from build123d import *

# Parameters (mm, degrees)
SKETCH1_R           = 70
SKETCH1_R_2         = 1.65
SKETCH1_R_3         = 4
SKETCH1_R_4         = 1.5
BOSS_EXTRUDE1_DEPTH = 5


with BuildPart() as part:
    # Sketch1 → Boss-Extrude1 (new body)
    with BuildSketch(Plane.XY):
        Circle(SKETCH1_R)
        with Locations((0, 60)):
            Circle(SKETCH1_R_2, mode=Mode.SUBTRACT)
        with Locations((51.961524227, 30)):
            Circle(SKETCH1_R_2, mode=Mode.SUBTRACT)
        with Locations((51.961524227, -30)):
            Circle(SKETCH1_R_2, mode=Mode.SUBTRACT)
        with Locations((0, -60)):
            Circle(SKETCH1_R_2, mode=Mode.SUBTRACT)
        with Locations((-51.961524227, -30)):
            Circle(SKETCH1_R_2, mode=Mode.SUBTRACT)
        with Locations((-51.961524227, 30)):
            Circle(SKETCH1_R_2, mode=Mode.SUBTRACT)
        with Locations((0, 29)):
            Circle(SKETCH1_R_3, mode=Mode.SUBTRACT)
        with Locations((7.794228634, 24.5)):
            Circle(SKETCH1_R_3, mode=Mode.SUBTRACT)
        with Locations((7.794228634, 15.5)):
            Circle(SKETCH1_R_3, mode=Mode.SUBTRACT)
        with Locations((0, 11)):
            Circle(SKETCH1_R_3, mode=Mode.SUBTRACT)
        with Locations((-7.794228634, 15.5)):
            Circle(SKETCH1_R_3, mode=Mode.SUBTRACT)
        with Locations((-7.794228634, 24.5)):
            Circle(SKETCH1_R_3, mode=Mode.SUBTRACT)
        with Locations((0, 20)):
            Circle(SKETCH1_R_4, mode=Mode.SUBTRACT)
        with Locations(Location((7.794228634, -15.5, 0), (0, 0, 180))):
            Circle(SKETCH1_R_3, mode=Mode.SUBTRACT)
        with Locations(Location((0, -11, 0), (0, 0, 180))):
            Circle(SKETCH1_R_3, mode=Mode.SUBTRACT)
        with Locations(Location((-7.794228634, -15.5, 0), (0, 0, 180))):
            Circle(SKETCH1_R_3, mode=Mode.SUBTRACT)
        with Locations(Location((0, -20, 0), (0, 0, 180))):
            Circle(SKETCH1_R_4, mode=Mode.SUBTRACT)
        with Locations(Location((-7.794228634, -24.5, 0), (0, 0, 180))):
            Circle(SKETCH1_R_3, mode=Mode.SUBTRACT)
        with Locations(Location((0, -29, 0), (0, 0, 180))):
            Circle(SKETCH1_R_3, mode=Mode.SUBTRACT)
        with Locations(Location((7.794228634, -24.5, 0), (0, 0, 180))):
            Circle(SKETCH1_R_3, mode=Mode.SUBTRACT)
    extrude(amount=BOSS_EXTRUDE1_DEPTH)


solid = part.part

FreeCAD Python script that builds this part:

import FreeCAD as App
import Part
import Sketcher

V = App.Vector

doc = App.newDocument("Part")
body = doc.addObject("PartDesign::Body", "Body")

# Sketch on XY plane
sketch1 = body.newObject("Sketcher::SketchObject", "Sketch")
sketch1.AttachmentSupport = (doc.getObject("XY_Plane"), [""])
sketch1.MapMode = "FlatFace"
sketch1.addGeometry([
    Part.Circle(V(0, 0, 0), V(0, 0, 1), 70),  # 0
    Part.Circle(V(0, -60, 0), V(0, 0, 1), 1.65),  # 1
    Part.Circle(V(-51.961524, -30, 0), V(0, 0, 1), 1.65),  # 2
    Part.Circle(V(-7.794229, -24.5, 0), V(0, 0, 1), 4),  # 3
    Part.Circle(V(0, -29, 0), V(0, 0, 1), 4),  # 4
    Part.Circle(V(-7.794229, -15.5, 0), V(0, 0, 1), 4),  # 5
    Part.Circle(V(0, -20, 0), V(0, 0, 1), 1.5),  # 6
    Part.Circle(V(0, -11, 0), V(0, 0, 1), 4),  # 7
    Part.Circle(V(7.794229, -24.5, 0), V(0, 0, 1), 4),  # 8
    Part.Circle(V(7.794229, -15.5, 0), V(0, 0, 1), 4),  # 9
    Part.Circle(V(51.961524, -30, 0), V(0, 0, 1), 1.65),  # 10
    Part.Circle(V(-51.961524, 30, 0), V(0, 0, 1), 1.65),  # 11
    Part.Circle(V(0, 11, 0), V(0, 0, 1), 4),  # 12
    Part.Circle(V(-7.794229, 15.5, 0), V(0, 0, 1), 4),  # 13
    Part.Circle(V(0, 20, 0), V(0, 0, 1), 1.5),  # 14
    Part.Circle(V(-7.794229, 24.5, 0), V(0, 0, 1), 4),  # 15
    Part.Circle(V(0, 29, 0), V(0, 0, 1), 4),  # 16
    Part.Circle(V(0, 60, 0), V(0, 0, 1), 1.65),  # 17
    Part.Circle(V(7.794229, 15.5, 0), V(0, 0, 1), 4),  # 18
    Part.Circle(V(7.794229, 24.5, 0), V(0, 0, 1), 4),  # 19
    Part.Circle(V(51.961524, 30, 0), V(0, 0, 1), 1.65),  # 20
], False)
sketch1.addConstraint([
    Sketcher.Constraint("Coincident", 0, 3, -1, 1),
    Sketcher.Constraint("Equal", 1, 2),
    Sketcher.Constraint("Equal", 3, 4),
    Sketcher.Constraint("Equal", 4, 5),
    Sketcher.Constraint("Equal", 5, 7),
    Sketcher.Constraint("Equal", 7, 8),
    Sketcher.Constraint("Equal", 8, 9),
    Sketcher.Constraint("Equal", 2, 10),
    Sketcher.Constraint("Equal", 10, 11),
    Sketcher.Constraint("Equal", 9, 12),
    Sketcher.Constraint("Equal", 12, 13),
    Sketcher.Constraint("Equal", 6, 14),
    Sketcher.Constraint("Equal", 13, 15),
    Sketcher.Constraint("Equal", 15, 16),
    Sketcher.Constraint("Equal", 11, 17),
    Sketcher.Constraint("Equal", 16, 18),
    Sketcher.Constraint("Equal", 18, 19),
    Sketcher.Constraint("Equal", 17, 20),
    Sketcher.Constraint("Symmetric", 10, 3, 11, 3, -1, 1),
    Sketcher.Constraint("Symmetric", 7, 3, 12, 3, -1, 1),
    Sketcher.Constraint("Symmetric", 9, 3, 13, 3, -1, 1),
    Sketcher.Constraint("Symmetric", 6, 3, 14, 3, -1, 1),
    Sketcher.Constraint("Symmetric", 8, 3, 15, 3, -1, 1),
    Sketcher.Constraint("Symmetric", 4, 3, 16, 3, -1, 1),
    Sketcher.Constraint("Symmetric", 1, 3, 17, 3, -1, 1),
    Sketcher.Constraint("Symmetric", 5, 3, 18, 3, -1, 1),
    Sketcher.Constraint("Symmetric", 3, 3, 19, 3, -1, 1),
    Sketcher.Constraint("Symmetric", 2, 3, 20, 3, -1, 1),
    Sketcher.Constraint("Symmetric", 3, 3, 8, 3, -2),
    Sketcher.Constraint("Symmetric", 5, 3, 9, 3, -2),
    Sketcher.Constraint("Symmetric", 2, 3, 10, 3, -2),
    Sketcher.Constraint("PointOnObject", 1, 3, -2),
    Sketcher.Constraint("PointOnObject", 4, 3, -2),
    Sketcher.Constraint("PointOnObject", 6, 3, -2),
    Sketcher.Constraint("PointOnObject", 7, 3, -2),
    Sketcher.Constraint("Vertical", 3, 3, 5, 3),
    Sketcher.Constraint("Diameter", 0, 140.0),
    Sketcher.Constraint("Diameter", 3, 8.0),
    Sketcher.Constraint("Diameter", 6, 3.0),
    Sketcher.Constraint("Diameter", 1, 3.3),
    Sketcher.Constraint("DistanceY", 1, 3, -1, 1, 60.0),
    Sketcher.Constraint("DistanceY", 2, 3, -1, 1, 30.0),
    Sketcher.Constraint("DistanceY", 4, 3, -1, 1, 29.0),
    Sketcher.Constraint("DistanceY", 6, 3, -1, 1, 20.0),
    Sketcher.Constraint("DistanceY", 7, 3, -1, 1, 11.0),
    Sketcher.Constraint("DistanceY", 3, 3, 5, 3, 9.0),
    Sketcher.Constraint("DistanceY", 5, 3, 13, 3, 31.0),
    Sketcher.Constraint("DistanceX", 3, 3, -1, 1, 7.794229),
    Sketcher.Constraint("DistanceX", 2, 3, -1, 1, 51.961524),
])
pad1 = body.newObject("PartDesign::Pad", "Pad")
pad1.Profile = sketch1
pad1.Length = 5

doc.recompute()
